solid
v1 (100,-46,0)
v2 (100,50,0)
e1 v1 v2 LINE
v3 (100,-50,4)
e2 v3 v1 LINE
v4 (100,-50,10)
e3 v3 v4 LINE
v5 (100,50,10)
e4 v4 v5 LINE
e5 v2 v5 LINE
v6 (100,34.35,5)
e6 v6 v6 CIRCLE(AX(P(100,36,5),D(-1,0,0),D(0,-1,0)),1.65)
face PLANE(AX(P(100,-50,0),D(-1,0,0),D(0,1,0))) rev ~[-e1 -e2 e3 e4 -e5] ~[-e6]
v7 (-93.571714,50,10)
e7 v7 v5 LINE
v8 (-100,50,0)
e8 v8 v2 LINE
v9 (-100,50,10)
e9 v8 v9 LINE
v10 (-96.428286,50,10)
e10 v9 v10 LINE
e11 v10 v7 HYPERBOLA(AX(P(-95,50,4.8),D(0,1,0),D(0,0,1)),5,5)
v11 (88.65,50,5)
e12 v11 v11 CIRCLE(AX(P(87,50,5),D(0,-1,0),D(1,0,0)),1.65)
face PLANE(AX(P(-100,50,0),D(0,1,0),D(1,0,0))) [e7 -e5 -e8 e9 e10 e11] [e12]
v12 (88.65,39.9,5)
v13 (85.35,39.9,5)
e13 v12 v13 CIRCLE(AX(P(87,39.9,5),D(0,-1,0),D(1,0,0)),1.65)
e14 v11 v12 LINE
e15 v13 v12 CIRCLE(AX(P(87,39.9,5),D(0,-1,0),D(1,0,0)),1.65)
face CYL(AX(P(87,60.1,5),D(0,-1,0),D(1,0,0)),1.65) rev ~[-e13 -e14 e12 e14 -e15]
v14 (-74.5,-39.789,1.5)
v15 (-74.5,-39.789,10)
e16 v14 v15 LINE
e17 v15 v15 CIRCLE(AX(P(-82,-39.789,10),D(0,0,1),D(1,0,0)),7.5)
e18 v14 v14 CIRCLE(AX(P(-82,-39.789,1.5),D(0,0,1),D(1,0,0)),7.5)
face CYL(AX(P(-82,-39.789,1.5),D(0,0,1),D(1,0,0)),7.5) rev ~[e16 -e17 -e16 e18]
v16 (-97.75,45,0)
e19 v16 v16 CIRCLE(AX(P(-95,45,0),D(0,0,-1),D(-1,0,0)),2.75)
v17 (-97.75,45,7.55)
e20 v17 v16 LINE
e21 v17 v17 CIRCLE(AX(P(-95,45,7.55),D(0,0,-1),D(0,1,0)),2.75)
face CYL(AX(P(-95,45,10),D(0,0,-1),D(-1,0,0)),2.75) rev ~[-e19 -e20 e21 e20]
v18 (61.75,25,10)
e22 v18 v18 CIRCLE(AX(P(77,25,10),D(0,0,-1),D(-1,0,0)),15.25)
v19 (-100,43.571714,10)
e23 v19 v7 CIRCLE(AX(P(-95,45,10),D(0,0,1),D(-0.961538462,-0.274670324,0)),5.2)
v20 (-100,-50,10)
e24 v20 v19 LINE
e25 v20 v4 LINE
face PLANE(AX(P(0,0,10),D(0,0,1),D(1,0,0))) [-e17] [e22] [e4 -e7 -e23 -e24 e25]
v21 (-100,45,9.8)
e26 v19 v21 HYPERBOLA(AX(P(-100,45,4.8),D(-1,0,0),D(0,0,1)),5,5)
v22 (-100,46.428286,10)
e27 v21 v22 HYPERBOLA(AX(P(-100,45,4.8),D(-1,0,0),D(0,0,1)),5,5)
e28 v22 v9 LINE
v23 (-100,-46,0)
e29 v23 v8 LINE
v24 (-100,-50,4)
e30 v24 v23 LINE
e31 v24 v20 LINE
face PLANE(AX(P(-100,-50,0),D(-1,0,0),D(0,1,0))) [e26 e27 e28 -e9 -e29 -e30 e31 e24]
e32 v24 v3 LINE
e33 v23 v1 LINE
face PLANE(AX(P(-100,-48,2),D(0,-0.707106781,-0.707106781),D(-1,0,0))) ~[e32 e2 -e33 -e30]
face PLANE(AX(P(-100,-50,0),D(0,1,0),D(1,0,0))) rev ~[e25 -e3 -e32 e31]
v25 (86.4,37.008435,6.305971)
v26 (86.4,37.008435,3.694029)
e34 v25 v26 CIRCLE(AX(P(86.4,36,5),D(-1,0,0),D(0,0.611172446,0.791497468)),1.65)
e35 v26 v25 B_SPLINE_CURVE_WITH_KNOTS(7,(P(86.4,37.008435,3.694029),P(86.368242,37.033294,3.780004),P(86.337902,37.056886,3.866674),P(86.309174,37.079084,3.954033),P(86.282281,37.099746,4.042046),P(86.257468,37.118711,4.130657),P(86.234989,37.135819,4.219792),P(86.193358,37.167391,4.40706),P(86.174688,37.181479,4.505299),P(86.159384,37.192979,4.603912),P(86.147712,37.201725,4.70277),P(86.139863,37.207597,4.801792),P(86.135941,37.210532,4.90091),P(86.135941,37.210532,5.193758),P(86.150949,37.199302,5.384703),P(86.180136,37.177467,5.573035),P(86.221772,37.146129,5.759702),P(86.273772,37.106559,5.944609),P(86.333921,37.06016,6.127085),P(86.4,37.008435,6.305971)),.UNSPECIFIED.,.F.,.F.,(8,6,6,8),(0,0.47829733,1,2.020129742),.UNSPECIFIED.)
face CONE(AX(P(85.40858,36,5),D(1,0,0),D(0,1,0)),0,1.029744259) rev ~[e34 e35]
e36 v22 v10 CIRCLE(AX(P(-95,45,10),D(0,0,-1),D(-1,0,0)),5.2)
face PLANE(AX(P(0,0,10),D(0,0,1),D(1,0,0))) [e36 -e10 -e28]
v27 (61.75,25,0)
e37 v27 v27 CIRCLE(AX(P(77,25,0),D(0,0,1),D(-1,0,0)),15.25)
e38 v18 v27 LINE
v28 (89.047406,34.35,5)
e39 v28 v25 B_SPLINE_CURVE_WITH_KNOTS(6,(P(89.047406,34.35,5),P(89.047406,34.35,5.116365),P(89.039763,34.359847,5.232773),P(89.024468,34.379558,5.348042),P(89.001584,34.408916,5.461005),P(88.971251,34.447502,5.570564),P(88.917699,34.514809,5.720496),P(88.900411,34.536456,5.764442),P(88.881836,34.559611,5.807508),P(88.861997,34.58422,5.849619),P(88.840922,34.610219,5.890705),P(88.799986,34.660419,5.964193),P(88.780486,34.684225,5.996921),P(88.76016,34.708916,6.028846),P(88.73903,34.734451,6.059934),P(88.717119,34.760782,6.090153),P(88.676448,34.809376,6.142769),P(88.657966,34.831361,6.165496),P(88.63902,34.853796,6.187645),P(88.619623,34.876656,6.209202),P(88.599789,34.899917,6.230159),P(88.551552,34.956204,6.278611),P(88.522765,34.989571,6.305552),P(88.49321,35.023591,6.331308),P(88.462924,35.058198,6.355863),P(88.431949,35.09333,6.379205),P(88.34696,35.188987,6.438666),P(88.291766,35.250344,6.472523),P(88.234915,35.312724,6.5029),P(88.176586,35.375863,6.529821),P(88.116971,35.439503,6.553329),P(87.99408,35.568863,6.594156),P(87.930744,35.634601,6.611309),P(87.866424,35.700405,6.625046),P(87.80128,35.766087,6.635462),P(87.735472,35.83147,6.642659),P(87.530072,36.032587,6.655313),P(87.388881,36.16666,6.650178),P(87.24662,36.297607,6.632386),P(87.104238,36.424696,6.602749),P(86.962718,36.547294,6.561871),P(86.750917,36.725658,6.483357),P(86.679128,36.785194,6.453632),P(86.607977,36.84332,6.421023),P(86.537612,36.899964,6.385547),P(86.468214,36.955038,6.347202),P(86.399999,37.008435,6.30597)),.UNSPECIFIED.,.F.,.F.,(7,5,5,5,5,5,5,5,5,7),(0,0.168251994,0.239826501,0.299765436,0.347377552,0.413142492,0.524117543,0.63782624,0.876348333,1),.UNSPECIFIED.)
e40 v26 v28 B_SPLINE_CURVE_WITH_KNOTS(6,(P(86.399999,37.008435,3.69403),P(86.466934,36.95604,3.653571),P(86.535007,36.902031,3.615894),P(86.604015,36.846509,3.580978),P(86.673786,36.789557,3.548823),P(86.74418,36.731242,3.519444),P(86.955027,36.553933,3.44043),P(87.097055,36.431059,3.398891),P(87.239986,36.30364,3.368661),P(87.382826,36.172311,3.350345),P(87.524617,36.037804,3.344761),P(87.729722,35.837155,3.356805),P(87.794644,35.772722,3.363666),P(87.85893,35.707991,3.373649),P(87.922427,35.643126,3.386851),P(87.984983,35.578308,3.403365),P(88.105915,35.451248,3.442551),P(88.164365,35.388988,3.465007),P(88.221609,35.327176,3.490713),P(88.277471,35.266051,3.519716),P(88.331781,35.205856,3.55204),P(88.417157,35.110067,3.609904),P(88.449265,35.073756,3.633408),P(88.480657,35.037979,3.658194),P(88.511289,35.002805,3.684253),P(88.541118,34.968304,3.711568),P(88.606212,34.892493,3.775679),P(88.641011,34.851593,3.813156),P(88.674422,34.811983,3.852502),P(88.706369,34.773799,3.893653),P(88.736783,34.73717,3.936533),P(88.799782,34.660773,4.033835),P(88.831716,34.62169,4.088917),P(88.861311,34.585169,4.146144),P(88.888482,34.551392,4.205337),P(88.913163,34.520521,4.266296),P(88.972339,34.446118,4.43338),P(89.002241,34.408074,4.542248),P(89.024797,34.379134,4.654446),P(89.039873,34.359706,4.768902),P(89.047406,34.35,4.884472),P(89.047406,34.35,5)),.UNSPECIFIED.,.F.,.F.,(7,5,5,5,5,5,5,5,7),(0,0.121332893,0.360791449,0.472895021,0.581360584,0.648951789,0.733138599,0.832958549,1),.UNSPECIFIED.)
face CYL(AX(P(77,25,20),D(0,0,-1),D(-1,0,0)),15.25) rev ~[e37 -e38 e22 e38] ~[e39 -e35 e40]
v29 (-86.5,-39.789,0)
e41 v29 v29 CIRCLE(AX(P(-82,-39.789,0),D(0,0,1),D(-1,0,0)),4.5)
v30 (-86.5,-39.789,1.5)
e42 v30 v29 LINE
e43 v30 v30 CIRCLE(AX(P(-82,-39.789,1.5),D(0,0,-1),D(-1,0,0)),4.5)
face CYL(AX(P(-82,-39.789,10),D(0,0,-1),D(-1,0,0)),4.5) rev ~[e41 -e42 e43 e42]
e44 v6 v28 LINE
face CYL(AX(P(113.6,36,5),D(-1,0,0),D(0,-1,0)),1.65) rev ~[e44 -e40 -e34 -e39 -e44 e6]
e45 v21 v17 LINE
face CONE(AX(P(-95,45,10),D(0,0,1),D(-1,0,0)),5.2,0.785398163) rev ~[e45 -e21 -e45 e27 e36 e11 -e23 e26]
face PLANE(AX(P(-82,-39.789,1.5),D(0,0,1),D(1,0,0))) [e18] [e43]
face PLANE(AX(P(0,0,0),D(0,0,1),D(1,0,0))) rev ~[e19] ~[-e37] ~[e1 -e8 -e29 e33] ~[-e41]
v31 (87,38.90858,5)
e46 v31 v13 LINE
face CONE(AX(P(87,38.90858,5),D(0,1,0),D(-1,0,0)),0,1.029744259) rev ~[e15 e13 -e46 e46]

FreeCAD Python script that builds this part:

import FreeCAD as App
import Part
import Sketcher
Q = App.Units.Quantity


def edges_at(feature, points):
    """Names of the edges that pass closest to the given points."""
    edges = feature.Shape.Edges
    near = lambda p: min(range(len(edges)), key=lambda i: edges[i].distToShape(Part.Vertex(*p))[0])
    return sorted({f"Edge{near(p) + 1}" for p in points})

doc = App.newDocument("Part")
body = doc.addObject("PartDesign::Body", "Body")

sketch1 = body.newObject("Sketcher::SketchObject", "Sketch")
sketch1.AttachmentSupport = (doc.getObject("XY_Plane"), [""])
sketch1.MapMode = "FlatFace"
sketch1.addGeometry(Part.LineSegment(App.Vector(-100, 50, 0), App.Vector(-100, -50, 0)), False)
sketch1.addGeometry(Part.LineSegment(App.Vector(-100, -50, 0), App.Vector(100, -50, 0)), False)
sketch1.addGeometry(Part.LineSegment(App.Vector(100, -50, 0), App.Vector(100, 50, 0)), False)
sketch1.addGeometry(Part.LineSegment(App.Vector(100, 50, 0), App.Vector(-100, 50, 0)), False)
sketch1.addConstraint(Sketcher.Constraint("Coincident", 0, 2, 1, 1))
sketch1.addConstraint(Sketcher.Constraint("Coincident", 1, 2, 2, 1))
sketch1.addConstraint(Sketcher.Constraint("Coincident", 2, 2, 3, 1))
sketch1.addConstraint(Sketcher.Constraint("Coincident", 3, 2, 0, 1))
sketch1.addConstraint(Sketcher.Constraint("Vertical", 0))
sketch1.addConstraint(Sketcher.Constraint("Horizontal", 1))
sketch1.addConstraint(Sketcher.Constraint("Vertical", 2))
sketch1.addConstraint(Sketcher.Constraint("Horizontal", 3))
sketch1.addConstraint(Sketcher.Constraint("Symmetric", 0, 2, 2, 2, -1, 1))
sketch1.addConstraint(Sketcher.Constraint("DistanceX", 1, 1, 1, 2, Q("200 mm")))
sketch1.addConstraint(Sketcher.Constraint("DistanceY", 0, 2, 0, 1, Q("100 mm")))
pad1 = body.newObject("PartDesign::Pad", "Pad")
pad1.Profile = sketch1
pad1.Length = 10
doc.recompute()

chamfer = body.newObject("PartDesign::Chamfer", "Chamfer")
chamfer.Base = (pad1, edges_at(pad1, [(0, -50, 0)]))
chamfer.Size = 4

sketch2 = body.newObject("Sketcher::SketchObject", "Sketch001")
sketch2.AttachmentSupport = (doc.getObject("XY_Plane"), [""])
sketch2.MapMode = "FlatFace"
sketch2.AttachmentOffset = App.Placement(App.Vector(0, 0, 10), App.Rotation())
sketch2.addGeometry(Part.Circle(App.Vector(-82, -39.8, 0), App.Vector(0, 0, 1), 4.5), False)
sketch2.addConstraint(Sketcher.Constraint("Diameter", 0, Q("9 mm")))
sketch2.addConstraint(Sketcher.Constraint("DistanceX", 0, 3, -1, 1, Q("82 mm")))
sketch2.addConstraint(Sketcher.Constraint("DistanceY", 0, 3, -1, 1, Q("39.789 mm")))
doc.recompute()
hole = body.newObject("PartDesign::Hole", "Hole")
hole.Profile = sketch2
hole.ThreadType = "None"
hole.Diameter = 9
hole.DepthType = "Dimension"
hole.Depth = 10
hole.DrillPoint = "Angled"
hole.DrillPointAngle = 118
hole.HoleCutType = "Counterbore"
hole.HoleCutDiameter = 15
hole.HoleCutDepth = 8.5

sketch3 = body.newObject("Sketcher::SketchObject", "Sketch002")
sketch3.AttachmentSupport = (doc.getObject("XY_Plane"), [""])
sketch3.MapMode = "FlatFace"
sketch3.AttachmentOffset = App.Placement(App.Vector(0, 0, 10), App.Rotation())
sketch3.addGeometry(Part.Circle(App.Vector(-95, 45, 0), App.Vector(0, 0, 1), 2.8), False)
sketch3.addConstraint(Sketcher.Constraint("Diameter", 0, Q("5.5 mm")))
sketch3.addConstraint(Sketcher.Constraint("DistanceX", 0, 3, -1, 1, Q("95 mm")))
sketch3.addConstraint(Sketcher.Constraint("DistanceY", -1, 1, 0, 3, Q("45 mm")))
doc.recompute()
hole2 = body.newObject("PartDesign::Hole", "Hole001")
hole2.Profile = sketch3
hole2.ThreadType = "None"
hole2.Diameter = 5.5
hole2.DepthType = "Dimension"
hole2.Depth = 10
hole2.DrillPoint = "Angled"
hole2.DrillPointAngle = 118
hole2.HoleCutType = "Countersink"
hole2.HoleCutDiameter = 10.4
hole2.HoleCutCountersinkAngle = 90

sketch4 = body.newObject("Sketcher::SketchObject", "Sketch003")
sketch4.AttachmentSupport = (doc.getObject("XY_Plane"), [""])
sketch4.MapMode = "FlatFace"
sketch4.AttachmentOffset = App.Placement(App.Vector(0, 0, 10), App.Rotation())
sketch4.addGeometry(Part.Circle(App.Vector(77, 25, 0), App.Vector(0, 0, 1), 15), False)
sketch4.addConstraint(Sketcher.Constraint("Diameter", 0, Q("30.5 mm")))
sketch4.addConstraint(Sketcher.Constraint("DistanceX", -1, 1, 0, 3, Q("77 mm")))
sketch4.addConstraint(Sketcher.Constraint("DistanceY", -1, 1, 0, 3, Q("25 mm")))
doc.recompute()
hole3 = body.newObject("PartDesign::Hole", "Hole002")
hole3.Profile = sketch4
hole3.ThreadType = "None"
hole3.Diameter = 30.5
hole3.DepthType = "Dimension"
hole3.Depth = 10
hole3.DrillPoint = "Angled"
hole3.DrillPointAngle = 118

sketch5 = body.newObject("Sketcher::SketchObject", "Sketch004")
sketch5.AttachmentSupport = (doc.getObject("YZ_Plane"), [""])
sketch5.MapMode = "FlatFace"
sketch5.AttachmentOffset = App.Placement(App.Vector(0, 0, 100), App.Rotation())
sketch5.addGeometry(Part.Circle(App.Vector(36, 5, 0), App.Vector(0, 0, 1), 1.6), False)
sketch5.addConstraint(Sketcher.Constraint("Diameter", 0, Q("3.3 mm")))
sketch5.addConstraint(Sketcher.Constraint("DistanceX", -1, 1, 0, 3, Q("36 mm")))
sketch5.addConstraint(Sketcher.Constraint("DistanceY", -1, 1, 0, 3, Q("5 mm")))
doc.recompute()
hole4 = body.newObject("PartDesign::Hole", "Hole003")
hole4.Profile = sketch5
hole4.ThreadType = "None"
hole4.Diameter = 3.3
hole4.DepthType = "Dimension"
hole4.Depth = 13.6
hole4.DrillPoint = "Angled"
hole4.DrillPointAngle = 118

sketch6 = body.newObject("Sketcher::SketchObject", "Sketch005")
sketch6.AttachmentSupport = (doc.getObject("XZ_Plane"), [""])
sketch6.MapMode = "FlatFace"
sketch6.AttachmentOffset = App.Placement(App.Vector(0, 0, -50), App.Rotation())
sketch6.addGeometry(Part.Circle(App.Vector(87, 5, 0), App.Vector(0, 0, 1), 1.6), False)
sketch6.addConstraint(Sketcher.Constraint("Diameter", 0, Q("3.3 mm")))
sketch6.addConstraint(Sketcher.Constraint("DistanceX", -1, 1, 0, 3, Q("87 mm")))
sketch6.addConstraint(Sketcher.Constraint("DistanceY", -1, 1, 0, 3, Q("5 mm")))
doc.recompute()
hole5 = body.newObject("PartDesign::Hole", "Hole004")
hole5.Profile = sketch6
hole5.ThreadType = "None"
hole5.Diameter = 3.3
hole5.DepthType = "Dimension"
hole5.Depth = 10.1
hole5.DrillPoint = "Angled"
hole5.DrillPointAngle = 118
hole5.Reversed = True

doc.recompute()
